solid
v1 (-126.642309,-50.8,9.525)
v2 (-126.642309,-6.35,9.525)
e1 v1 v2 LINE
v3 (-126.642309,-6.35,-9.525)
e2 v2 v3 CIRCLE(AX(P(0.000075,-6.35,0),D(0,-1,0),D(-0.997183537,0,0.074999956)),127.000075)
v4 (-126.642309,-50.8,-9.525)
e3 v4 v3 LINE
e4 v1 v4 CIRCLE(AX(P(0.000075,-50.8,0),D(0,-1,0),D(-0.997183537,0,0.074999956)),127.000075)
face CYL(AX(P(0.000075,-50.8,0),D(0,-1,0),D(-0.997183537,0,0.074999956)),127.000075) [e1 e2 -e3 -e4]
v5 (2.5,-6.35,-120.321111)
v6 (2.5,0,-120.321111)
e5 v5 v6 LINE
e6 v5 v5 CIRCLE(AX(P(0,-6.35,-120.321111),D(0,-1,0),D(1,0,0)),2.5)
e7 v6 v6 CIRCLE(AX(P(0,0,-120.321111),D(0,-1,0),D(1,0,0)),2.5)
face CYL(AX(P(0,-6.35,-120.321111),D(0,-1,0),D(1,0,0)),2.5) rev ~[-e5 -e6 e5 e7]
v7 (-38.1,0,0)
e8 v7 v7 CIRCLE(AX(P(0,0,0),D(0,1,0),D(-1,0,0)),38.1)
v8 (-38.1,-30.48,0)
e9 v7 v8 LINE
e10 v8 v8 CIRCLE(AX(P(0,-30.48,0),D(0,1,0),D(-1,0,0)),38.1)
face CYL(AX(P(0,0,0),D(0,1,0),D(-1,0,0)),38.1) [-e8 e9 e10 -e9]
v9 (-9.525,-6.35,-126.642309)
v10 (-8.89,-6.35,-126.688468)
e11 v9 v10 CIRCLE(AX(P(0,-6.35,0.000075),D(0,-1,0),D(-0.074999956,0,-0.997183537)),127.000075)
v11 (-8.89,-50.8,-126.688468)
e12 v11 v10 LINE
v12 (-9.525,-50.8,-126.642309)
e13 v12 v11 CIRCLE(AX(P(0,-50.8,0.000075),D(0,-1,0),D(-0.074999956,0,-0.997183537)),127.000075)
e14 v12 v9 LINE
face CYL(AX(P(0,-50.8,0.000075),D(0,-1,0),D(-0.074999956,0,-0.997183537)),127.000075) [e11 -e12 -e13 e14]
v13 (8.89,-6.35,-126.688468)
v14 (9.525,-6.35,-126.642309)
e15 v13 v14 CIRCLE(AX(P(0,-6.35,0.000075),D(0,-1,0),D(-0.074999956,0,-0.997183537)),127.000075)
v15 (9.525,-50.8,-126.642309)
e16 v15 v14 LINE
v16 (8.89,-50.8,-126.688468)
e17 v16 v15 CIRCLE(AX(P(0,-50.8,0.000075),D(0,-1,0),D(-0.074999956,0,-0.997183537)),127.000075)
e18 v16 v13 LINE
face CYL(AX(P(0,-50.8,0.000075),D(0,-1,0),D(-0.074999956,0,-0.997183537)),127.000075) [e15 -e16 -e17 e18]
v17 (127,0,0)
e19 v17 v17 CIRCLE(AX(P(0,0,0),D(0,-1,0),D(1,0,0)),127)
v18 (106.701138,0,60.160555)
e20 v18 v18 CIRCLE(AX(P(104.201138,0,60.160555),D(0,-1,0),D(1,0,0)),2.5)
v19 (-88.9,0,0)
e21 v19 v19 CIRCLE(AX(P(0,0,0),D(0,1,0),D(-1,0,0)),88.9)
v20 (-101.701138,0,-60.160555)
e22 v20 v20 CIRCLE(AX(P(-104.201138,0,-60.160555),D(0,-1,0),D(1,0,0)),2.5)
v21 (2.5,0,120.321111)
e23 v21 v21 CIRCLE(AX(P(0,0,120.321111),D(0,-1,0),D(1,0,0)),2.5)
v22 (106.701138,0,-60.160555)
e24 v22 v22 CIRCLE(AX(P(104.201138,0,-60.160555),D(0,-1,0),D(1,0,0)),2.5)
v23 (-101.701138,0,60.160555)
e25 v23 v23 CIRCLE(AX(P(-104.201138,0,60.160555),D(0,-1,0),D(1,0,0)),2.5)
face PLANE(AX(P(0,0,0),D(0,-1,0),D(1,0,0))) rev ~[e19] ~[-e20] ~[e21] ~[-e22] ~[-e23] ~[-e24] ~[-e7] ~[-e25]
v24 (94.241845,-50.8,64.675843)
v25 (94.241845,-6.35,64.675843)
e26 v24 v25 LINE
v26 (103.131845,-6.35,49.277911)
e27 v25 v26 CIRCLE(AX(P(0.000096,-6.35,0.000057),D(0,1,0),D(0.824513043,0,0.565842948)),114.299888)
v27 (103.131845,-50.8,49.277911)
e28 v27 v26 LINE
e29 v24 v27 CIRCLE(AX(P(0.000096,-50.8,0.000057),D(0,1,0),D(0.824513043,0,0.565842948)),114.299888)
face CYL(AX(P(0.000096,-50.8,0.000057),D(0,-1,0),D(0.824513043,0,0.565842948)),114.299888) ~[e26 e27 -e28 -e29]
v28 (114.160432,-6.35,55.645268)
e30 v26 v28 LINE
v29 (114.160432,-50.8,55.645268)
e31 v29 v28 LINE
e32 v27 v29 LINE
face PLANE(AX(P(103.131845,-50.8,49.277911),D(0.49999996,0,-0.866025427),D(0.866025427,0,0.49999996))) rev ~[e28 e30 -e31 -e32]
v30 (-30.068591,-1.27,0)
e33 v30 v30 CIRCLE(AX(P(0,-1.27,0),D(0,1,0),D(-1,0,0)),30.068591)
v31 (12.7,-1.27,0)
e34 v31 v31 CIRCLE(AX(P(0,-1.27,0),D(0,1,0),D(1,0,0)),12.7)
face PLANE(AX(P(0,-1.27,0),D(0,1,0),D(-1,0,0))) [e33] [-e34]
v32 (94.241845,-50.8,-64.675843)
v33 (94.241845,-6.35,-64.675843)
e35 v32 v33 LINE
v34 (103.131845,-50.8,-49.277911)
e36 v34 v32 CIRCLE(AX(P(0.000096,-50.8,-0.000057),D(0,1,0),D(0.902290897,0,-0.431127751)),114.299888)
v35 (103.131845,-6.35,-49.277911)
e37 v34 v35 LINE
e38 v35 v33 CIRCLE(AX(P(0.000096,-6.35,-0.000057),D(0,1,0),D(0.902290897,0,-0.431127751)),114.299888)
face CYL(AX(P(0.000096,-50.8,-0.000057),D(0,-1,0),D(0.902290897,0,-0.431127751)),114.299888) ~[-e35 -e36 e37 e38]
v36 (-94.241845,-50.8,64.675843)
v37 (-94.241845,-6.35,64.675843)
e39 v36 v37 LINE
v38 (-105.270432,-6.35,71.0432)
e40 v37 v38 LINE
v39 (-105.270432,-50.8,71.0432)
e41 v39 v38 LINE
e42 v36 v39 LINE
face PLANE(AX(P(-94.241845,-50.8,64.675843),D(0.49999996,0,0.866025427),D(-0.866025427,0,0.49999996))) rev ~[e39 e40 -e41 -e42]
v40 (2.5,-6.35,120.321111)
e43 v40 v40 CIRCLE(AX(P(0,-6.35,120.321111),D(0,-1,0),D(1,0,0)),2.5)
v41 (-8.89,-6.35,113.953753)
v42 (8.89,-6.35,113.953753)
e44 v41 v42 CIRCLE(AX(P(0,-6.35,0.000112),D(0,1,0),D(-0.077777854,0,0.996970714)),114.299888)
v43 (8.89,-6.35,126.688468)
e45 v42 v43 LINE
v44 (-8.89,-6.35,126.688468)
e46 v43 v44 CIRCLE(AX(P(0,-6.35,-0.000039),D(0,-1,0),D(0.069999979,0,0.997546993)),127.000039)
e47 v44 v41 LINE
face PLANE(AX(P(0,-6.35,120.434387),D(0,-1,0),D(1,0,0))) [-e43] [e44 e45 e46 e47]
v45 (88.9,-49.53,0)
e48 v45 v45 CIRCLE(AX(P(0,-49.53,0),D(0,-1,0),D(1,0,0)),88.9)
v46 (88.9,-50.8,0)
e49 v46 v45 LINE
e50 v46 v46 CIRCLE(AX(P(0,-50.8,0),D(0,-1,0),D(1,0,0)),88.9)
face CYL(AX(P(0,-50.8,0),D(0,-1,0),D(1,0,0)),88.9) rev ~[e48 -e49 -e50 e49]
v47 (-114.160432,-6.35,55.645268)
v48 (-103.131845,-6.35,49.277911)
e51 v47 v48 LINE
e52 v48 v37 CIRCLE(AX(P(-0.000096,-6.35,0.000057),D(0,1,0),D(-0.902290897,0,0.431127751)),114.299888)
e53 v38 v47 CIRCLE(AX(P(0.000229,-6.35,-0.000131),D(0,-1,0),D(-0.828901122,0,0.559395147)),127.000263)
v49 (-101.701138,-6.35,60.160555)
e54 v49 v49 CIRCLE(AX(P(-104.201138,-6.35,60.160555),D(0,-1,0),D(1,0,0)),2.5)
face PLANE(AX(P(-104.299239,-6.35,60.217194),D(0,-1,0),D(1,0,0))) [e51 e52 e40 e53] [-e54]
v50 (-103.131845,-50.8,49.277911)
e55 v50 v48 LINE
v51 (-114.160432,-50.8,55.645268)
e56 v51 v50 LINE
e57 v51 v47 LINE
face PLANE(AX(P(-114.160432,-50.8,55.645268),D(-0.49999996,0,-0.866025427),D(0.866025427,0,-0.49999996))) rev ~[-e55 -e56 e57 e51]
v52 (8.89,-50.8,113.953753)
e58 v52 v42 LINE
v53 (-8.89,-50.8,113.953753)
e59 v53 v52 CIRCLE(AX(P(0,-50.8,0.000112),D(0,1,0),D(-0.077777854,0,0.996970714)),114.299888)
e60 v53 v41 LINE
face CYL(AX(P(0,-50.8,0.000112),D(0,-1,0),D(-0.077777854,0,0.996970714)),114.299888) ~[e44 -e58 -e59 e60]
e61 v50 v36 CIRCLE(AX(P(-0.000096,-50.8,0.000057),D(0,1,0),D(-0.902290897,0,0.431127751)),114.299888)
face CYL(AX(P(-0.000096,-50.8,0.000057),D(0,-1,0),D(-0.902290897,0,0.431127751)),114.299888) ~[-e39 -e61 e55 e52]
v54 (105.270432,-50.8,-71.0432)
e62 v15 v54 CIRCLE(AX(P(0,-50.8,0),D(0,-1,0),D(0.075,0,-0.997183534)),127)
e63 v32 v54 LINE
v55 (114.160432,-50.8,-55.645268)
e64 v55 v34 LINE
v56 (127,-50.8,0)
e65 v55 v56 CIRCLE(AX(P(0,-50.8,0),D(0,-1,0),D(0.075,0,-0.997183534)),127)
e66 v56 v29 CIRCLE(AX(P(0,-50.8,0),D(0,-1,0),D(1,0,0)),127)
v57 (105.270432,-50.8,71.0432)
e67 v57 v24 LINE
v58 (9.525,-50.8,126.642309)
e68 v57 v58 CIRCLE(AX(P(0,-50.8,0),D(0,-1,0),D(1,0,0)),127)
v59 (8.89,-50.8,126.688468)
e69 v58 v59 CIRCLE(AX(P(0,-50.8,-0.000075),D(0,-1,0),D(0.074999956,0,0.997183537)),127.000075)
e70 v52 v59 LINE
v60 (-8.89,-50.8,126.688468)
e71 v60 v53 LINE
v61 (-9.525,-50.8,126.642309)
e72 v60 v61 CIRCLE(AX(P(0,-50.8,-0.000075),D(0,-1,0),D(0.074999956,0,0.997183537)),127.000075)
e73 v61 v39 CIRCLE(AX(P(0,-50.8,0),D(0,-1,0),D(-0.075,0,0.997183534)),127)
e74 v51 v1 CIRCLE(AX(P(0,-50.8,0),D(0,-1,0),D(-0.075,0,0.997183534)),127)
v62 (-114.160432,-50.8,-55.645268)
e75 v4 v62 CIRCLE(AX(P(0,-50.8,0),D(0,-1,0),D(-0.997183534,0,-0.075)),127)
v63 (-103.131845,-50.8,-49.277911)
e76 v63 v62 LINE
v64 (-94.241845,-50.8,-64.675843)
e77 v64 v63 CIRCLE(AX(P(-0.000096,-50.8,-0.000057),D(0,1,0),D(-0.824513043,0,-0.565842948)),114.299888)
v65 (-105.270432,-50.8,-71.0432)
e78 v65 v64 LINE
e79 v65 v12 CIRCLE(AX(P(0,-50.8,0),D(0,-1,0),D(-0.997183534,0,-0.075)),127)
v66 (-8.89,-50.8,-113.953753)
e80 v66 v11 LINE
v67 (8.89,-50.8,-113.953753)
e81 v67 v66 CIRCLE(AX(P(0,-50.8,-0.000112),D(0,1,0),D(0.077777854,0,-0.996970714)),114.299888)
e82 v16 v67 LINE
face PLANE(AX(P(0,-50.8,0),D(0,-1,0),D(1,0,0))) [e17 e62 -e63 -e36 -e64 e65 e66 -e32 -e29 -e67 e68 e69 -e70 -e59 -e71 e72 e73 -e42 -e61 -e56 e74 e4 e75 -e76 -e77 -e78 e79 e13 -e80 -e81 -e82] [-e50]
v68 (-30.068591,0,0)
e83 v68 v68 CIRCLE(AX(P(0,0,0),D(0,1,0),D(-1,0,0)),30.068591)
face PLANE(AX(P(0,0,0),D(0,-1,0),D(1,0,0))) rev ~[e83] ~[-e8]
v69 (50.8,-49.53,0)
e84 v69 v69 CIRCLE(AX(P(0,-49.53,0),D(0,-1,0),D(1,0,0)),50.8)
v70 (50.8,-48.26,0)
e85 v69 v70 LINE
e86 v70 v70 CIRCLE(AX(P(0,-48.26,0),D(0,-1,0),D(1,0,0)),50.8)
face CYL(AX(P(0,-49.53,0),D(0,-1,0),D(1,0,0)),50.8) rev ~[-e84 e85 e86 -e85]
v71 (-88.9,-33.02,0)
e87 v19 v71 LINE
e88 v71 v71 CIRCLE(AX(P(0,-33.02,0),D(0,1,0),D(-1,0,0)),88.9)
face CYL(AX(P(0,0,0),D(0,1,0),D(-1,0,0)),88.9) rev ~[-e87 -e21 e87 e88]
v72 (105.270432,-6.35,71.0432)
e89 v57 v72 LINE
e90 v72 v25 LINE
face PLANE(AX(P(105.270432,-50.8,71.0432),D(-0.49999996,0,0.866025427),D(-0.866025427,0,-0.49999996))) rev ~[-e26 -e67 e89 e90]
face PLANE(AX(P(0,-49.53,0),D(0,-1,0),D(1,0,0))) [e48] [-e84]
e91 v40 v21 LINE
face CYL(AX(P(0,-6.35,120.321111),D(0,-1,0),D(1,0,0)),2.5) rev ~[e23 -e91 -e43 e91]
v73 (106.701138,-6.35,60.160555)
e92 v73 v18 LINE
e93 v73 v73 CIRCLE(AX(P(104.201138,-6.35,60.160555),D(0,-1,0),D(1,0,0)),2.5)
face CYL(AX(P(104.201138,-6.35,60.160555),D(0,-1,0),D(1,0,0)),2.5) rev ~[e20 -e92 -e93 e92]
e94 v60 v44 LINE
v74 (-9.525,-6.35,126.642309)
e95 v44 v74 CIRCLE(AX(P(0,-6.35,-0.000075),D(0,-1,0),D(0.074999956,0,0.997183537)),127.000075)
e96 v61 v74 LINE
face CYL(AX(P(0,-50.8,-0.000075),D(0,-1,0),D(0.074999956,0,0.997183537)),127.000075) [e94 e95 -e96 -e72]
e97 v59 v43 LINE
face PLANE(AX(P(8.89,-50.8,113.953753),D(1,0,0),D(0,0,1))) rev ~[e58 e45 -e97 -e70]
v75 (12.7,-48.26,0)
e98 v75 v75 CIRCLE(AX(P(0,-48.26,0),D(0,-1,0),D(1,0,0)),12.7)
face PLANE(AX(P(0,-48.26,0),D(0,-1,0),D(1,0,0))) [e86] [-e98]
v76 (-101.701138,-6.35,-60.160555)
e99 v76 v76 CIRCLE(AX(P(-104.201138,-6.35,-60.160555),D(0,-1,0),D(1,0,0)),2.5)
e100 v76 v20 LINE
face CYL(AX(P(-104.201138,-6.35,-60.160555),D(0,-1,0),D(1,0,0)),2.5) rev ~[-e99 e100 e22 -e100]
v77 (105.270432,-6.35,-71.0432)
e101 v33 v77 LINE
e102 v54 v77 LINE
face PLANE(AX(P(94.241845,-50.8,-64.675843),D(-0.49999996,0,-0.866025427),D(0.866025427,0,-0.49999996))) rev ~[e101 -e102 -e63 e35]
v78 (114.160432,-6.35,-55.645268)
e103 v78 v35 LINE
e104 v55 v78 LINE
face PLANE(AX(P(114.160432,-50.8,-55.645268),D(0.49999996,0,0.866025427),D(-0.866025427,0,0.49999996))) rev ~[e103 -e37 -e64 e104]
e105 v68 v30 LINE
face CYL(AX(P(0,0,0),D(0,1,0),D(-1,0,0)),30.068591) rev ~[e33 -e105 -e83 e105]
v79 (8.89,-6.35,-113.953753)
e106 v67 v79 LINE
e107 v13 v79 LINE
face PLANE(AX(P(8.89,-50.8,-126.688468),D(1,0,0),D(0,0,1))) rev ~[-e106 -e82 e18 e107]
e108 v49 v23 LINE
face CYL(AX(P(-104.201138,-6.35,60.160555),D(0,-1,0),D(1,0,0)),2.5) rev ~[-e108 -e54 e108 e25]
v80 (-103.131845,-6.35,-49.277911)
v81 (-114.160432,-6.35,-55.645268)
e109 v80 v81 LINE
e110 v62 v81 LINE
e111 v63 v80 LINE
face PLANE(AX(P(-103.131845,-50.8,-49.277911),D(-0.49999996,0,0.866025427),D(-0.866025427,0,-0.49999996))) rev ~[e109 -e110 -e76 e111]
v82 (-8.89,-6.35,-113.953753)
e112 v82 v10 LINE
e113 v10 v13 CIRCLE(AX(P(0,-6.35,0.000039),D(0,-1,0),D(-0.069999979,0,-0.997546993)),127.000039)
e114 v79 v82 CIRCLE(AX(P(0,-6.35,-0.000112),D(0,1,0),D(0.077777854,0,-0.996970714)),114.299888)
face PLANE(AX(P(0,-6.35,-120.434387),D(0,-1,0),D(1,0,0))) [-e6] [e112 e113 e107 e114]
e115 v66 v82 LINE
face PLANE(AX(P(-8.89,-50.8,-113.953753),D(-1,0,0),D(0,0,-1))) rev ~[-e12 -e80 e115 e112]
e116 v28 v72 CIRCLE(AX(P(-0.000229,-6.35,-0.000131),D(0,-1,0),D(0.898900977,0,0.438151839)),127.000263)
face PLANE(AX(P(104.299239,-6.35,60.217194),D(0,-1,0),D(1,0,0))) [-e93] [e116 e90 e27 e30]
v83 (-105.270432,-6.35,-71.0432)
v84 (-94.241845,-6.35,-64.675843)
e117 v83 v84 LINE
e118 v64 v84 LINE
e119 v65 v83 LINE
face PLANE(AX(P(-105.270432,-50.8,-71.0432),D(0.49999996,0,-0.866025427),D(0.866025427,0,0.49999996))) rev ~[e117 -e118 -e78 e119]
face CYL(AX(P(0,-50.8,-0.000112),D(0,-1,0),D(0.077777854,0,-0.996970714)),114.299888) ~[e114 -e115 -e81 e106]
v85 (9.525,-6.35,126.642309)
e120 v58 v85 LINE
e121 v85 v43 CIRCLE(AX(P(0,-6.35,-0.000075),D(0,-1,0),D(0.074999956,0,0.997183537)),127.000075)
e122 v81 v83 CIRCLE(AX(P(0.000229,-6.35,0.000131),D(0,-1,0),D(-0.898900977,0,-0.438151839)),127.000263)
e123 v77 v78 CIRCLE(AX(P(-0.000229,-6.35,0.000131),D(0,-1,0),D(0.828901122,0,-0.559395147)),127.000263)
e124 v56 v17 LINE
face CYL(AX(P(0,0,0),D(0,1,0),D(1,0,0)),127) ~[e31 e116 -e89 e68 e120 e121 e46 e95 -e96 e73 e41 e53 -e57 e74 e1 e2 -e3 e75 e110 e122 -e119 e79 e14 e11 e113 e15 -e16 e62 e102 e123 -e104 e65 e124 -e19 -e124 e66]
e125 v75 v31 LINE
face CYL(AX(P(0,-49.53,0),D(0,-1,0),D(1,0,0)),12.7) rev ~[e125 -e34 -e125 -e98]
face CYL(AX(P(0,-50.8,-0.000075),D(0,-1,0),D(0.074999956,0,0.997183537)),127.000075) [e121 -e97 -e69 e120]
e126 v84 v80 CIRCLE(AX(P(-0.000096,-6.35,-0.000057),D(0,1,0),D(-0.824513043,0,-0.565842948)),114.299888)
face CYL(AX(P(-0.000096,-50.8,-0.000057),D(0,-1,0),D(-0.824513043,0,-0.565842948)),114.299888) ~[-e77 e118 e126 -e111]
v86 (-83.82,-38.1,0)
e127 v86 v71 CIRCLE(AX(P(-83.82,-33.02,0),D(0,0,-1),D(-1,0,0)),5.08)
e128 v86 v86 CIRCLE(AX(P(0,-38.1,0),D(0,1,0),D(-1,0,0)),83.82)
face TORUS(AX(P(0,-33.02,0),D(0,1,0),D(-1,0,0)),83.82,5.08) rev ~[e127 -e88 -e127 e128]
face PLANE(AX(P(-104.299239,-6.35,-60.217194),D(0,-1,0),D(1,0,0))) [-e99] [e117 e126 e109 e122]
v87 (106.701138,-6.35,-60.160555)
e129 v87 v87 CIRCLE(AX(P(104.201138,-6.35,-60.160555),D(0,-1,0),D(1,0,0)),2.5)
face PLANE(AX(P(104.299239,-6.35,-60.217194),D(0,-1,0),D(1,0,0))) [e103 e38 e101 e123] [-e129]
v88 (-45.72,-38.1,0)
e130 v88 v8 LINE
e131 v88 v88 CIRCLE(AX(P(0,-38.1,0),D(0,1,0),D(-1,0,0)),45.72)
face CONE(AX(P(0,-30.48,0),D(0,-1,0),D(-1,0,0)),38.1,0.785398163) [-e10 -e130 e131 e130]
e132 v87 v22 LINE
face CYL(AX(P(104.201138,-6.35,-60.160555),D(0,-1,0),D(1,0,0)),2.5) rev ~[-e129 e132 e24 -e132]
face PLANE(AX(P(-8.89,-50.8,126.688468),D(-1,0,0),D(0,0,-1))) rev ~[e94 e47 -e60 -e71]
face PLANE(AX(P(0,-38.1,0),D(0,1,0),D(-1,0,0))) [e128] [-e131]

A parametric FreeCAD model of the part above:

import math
import FreeCAD as App
import Part
import Sketcher

V = App.Vector
Q = App.Units.Quantity


def edges_at(feature, points):
    """Names of the edges that pass closest to the given points."""
    edges = feature.Shape.Edges
    near = lambda p: min(range(len(edges)), key=lambda i: edges[i].distToShape(Part.Vertex(*p))[0])
    return sorted({f"Edge{near(p) + 1}" for p in points})

doc = App.newDocument("Part")
body = doc.addObject("PartDesign::Body", "Body")

sketch1 = body.newObject("Sketcher::SketchObject", "Sketch")
sketch1.AttachmentSupport = (doc.getObject("XZ_Plane"), [""])
sketch1.MapMode = "FlatFace"
sketch1.addGeometry(Part.Circle(V(0, 0, 0), V(0, 0, 1), 127), False)
sketch1.addConstraint([
    Sketcher.Constraint("Coincident", 0, 3, -1, 1),
    Sketcher.Constraint("Diameter", 0, Q("10 in")),
])
pad1 = body.newObject("PartDesign::Pad", "Pad")
pad1.Profile = sketch1
pad1.Length = Q("2 in")

sketch2 = body.newObject("Sketcher::SketchObject", "Sketch001")
sketch2.AttachmentSupport = (doc.getObject("XZ_Plane"), [""])
sketch2.MapMode = "FlatFace"
sketch2.AttachmentOffset = App.Placement(V(0, 0, 2 * 25.4), App.Rotation())
sketch2.addGeometry(Part.Circle(V(0, 0, 0), V(0, 0, 1), 89), False)
sketch2.addConstraint([
    Sketcher.Constraint("Coincident", 0, 3, -1, 1),
    Sketcher.Constraint("Diameter", 0, Q("7 in")),
])
pocket1 = body.newObject("PartDesign::Pocket", "Pocket")
pocket1.Profile = sketch2
pocket1.Length = Q("0.05 in")

sketch3 = body.newObject("Sketcher::SketchObject", "Sketch002")
sketch3.AttachmentSupport = (doc.getObject("XZ_Plane"), [""])
sketch3.MapMode = "FlatFace"
sketch3.AttachmentOffset = App.Placement(V(0, 0, 1.95 * 25.4), App.Rotation())
sketch3.addGeometry(Part.Circle(V(0, 0, 0), V(0, 0, 1), 13), False)
sketch3.addConstraint([
    Sketcher.Constraint("Coincident", 0, 3, -1, 1),
    Sketcher.Constraint("Diameter", 0, Q("1 in")),
])
pocket2 = body.newObject("PartDesign::Pocket", "Pocket001")
pocket2.Profile = sketch3
pocket2.Length = Q("2 in")

sketch4 = body.newObject("Sketcher::SketchObject", "Sketch003")
sketch4.AttachmentSupport = (doc.getObject("XZ_Plane"), [""])
sketch4.MapMode = "FlatFace"
sketch4.AttachmentOffset = App.Placement(V(0, 0, 1.95 * 25.4), App.Rotation())
sketch4.addGeometry(Part.Circle(V(0, 0, 0), V(0, 0, 1), 51), False)
sketch4.addConstraint([
    Sketcher.Constraint("Coincident", 0, 3, -1, 1),
    Sketcher.Constraint("Diameter", 0, Q("4 in")),
])
pocket3 = body.newObject("PartDesign::Pocket", "Pocket002")
pocket3.Profile = sketch4
pocket3.Length = Q("0.05 in")

sketch5 = body.newObject("Sketcher::SketchObject", "Sketch004")
sketch5.AttachmentSupport = (doc.getObject("XZ_Plane"), [""])
sketch5.MapMode = "FlatFace"
sketch5.addGeometry([
    Part.Circle(V(0, 0, 0), V(0, 0, 1), 89),
    Part.Circle(V(0, 0, 0), V(0, 0, 1), 38),
], False)
sketch5.addConstraint([
    Sketcher.Constraint("Coincident", 0, 3, -1, 1),
    Sketcher.Constraint("Coincident", 1, 3, -1, 1),
    Sketcher.Constraint("Diameter", 0, Q("7 in")),
    Sketcher.Constraint("Diameter", 1, Q("3 in")),
])
pocket4 = body.newObject("PartDesign::Pocket", "Pocket003")
pocket4.Profile = sketch5
pocket4.Length = Q("1.5 in")
pocket4.Reversed = True
doc.recompute()

chamfer = body.newObject("PartDesign::Chamfer", "Chamfer")
chamfer.Base = (pocket4, edges_at(pocket4, [(38.1, -38.1, 0)]))
chamfer.Size = Q("0.3 in")
doc.recompute()

fillet = body.newObject("PartDesign::Fillet", "Fillet")
fillet.Base = (chamfer, edges_at(chamfer, [(88.9, -38.1, 0)]))
fillet.Radius = Q("0.2 in")

sketch6 = body.newObject("Sketcher::SketchObject", "Sketch005")
sketch6.AttachmentSupport = (doc.getObject("XZ_Plane"), [""])
sketch6.MapMode = "FlatFace"
sketch6.AttachmentOffset = App.Placement(V(0, 0, 2 * 25.4), App.Rotation())
sketch6.addGeometry([
    Part.ArcOfCircle(Part.Circle(V(0, -0.001063, 0), V(0, 0, 1), 107.951063), math.radians(88.408262), math.radians(91.591738)),
    Part.ArcOfCircle(Part.Circle(V(3.175002, 114.255893, 0), V(0, 0, 1), 6.349998), math.radians(-91.591769), math.radians(0.000008)),
    Part.LineSegment(V(9.525, 114.255894, 0), V(9.525, 126.642309, 0)),
    Part.ArcOfCircle(Part.Circle(V(0, -0.000075, 0), V(0, 0, 1), 127.000075), math.radians(85.69878), math.radians(94.30122)),
    Part.LineSegment(V(-9.525, 126.642309, 0), V(-9.525, 114.255894, 0)),
    Part.ArcOfCircle(Part.Circle(V(-3.175002, 114.255893, 0), V(0, 0, 1), 6.349998), math.radians(179.999992), math.radians(271.591769)),
    Part.LineSegment(V(-74.055926, 87.52631, 0), V(-82.814443, 96.284827, 0)),
    Part.ArcOfCircle(Part.Circle(V(-0.000044, 0.000044, 0), V(0, 0, 1), 126.999938), math.radians(130.698776), math.radians(139.301224)),
    Part.LineSegment(V(-96.284827, 82.814443, 0), V(-87.52631, 74.055926, 0)),
    Part.ArcOfCircle(Part.Circle(V(-83.036181, 78.546053, 0), V(0, 0, 1), 6.35), math.radians(-135.000009), math.radians(-43.408242)),
    Part.ArcOfCircle(Part.Circle(V(-0.00047, 0.00047, 0), V(0, 0, 1), 107.949335), math.radians(133.408236), math.radians(136.591764)),
    Part.ArcOfCircle(Part.Circle(V(-78.546053, 83.036181, 0), V(0, 0, 1), 6.35), math.radians(-46.591758), math.radians(45.000009)),
    Part.LineSegment(V(-114.255894, 9.525, 0), V(-126.642309, 9.525, 0)),
    Part.ArcOfCircle(Part.Circle(V(0.000075, 0, 0), V(0, 0, 1), 127.000075), math.radians(175.69878), math.radians(184.30122)),
    Part.LineSegment(V(-126.642309, -9.525, 0), V(-114.255894, -9.525, 0)),
    Part.ArcOfCircle(Part.Circle(V(-114.255893, -3.175002, 0), V(0, 0, 1), 6.349998), math.radians(-90.000008), math.radians(1.591769)),
    Part.ArcOfCircle(Part.Circle(V(0.001063, 0, 0), V(0, 0, 1), 107.951063), math.radians(178.408262), math.radians(181.591738)),
    Part.ArcOfCircle(Part.Circle(V(-114.255893, 3.175002, 0), V(0, 0, 1), 6.349998), math.radians(-1.591769), math.radians(90.000008)),
    Part.LineSegment(V(-87.52631, -74.055926, 0), V(-96.284827, -82.814443, 0)),
    Part.ArcOfCircle(Part.Circle(V(-0.000044, -0.000044, 0), V(0, 0, 1), 126.999938), math.radians(-139.301224), math.radians(-130.698776)),
    Part.LineSegment(V(-82.814443, -96.284827, 0), V(-74.055926, -87.52631, 0)),
    Part.ArcOfCircle(Part.Circle(V(-78.546053, -83.036181, 0), V(0, 0, 1), 6.35), math.radians(-45.000009), math.radians(46.591758)),
    Part.ArcOfCircle(Part.Circle(V(-0.00047, -0.00047, 0), V(0, 0, 1), 107.949335), math.radians(-136.591764), math.radians(-133.408236)),
    Part.ArcOfCircle(Part.Circle(V(-83.036181, -78.546053, 0), V(0, 0, 1), 6.35), math.radians(43.408242), math.radians(135.000009)),
    Part.LineSegment(V(-9.525, -114.255894, 0), V(-9.525, -126.642309, 0)),
    Part.ArcOfCircle(Part.Circle(V(0, 0.000075, 0), V(0, 0, 1), 127.000075), math.radians(-94.30122), math.radians(-85.69878)),
    Part.LineSegment(V(9.525, -126.642309, 0), V(9.525, -114.255894, 0)),
    Part.ArcOfCircle(Part.Circle(V(3.175002, -114.255893, 0), V(0, 0, 1), 6.349998), math.radians(-0.000008), math.radians(91.591769)),
    Part.ArcOfCircle(Part.Circle(V(0, 0.001063, 0), V(0, 0, 1), 107.951063), math.radians(-91.591738), math.radians(-88.408262)),
    Part.ArcOfCircle(Part.Circle(V(-3.175002, -114.255893, 0), V(0, 0, 1), 6.349998), math.radians(88.408231), math.radians(180.000008)),
    Part.LineSegment(V(74.055926, -87.52631, 0), V(82.814443, -96.284827, 0)),
    Part.ArcOfCircle(Part.Circle(V(0.000044, -0.000044, 0), V(0, 0, 1), 126.999938), math.radians(-49.301224), math.radians(-40.698776)),
    Part.LineSegment(V(96.284827, -82.814443, 0), V(87.52631, -74.055926, 0)),
    Part.ArcOfCircle(Part.Circle(V(83.036181, -78.546053, 0), V(0, 0, 1), 6.35), math.radians(44.999991), math.radians(136.591758)),
    Part.ArcOfCircle(Part.Circle(V(0.00047, -0.00047, 0), V(0, 0, 1), 107.949335), math.radians(-46.591764), math.radians(-43.408236)),
    Part.ArcOfCircle(Part.Circle(V(78.546053, -83.036181, 0), V(0, 0, 1), 6.35), math.radians(133.408242), math.radians(225.000009)),
    Part.LineSegment(V(114.255894, -9.525, 0), V(126.642309, -9.525, 0)),
    Part.ArcOfCircle(Part.Circle(V(-0.000075, 0, 0), V(0, 0, 1), 127.000075), math.radians(-4.30122), math.radians(4.30122)),
    Part.LineSegment(V(126.642309, 9.525, 0), V(114.255894, 9.525, 0)),
    Part.ArcOfCircle(Part.Circle(V(114.255893, 3.175002, 0), V(0, 0, 1), 6.349998), math.radians(89.999992), math.radians(181.591769)),
    Part.ArcOfCircle(Part.Circle(V(-0.001063, 0, 0), V(0, 0, 1), 107.951063), math.radians(-1.591738), math.radians(1.591738)),
    Part.ArcOfCircle(Part.Circle(V(114.255893, -3.175002, 0), V(0, 0, 1), 6.349998), math.radians(178.408231), math.radians(270.000008)),
    Part.LineSegment(V(87.52631, 74.055926, 0), V(96.284827, 82.814443, 0)),
    Part.ArcOfCircle(Part.Circle(V(0.000044, 0.000044, 0), V(0, 0, 1), 126.999938), math.radians(40.698776), math.radians(49.301224)),
    Part.LineSegment(V(82.814443, 96.284827, 0), V(74.055926, 87.52631, 0)),
    Part.ArcOfCircle(Part.Circle(V(78.546053, 83.036181, 0), V(0, 0, 1), 6.35), math.radians(134.999991), math.radians(226.591758)),
    Part.ArcOfCircle(Part.Circle(V(0.00047, 0.00047, 0), V(0, 0, 1), 107.949335), math.radians(43.408236), math.radians(46.591764)),
    Part.ArcOfCircle(Part.Circle(V(83.036181, 78.546053, 0), V(0, 0, 1), 6.35), math.radians(-136.591758), math.radians(-44.999991)),
], False)
sketch6.addConstraint([
    Sketcher.Constraint("Tangent", 0, 1, 1, 1),
    Sketcher.Constraint("Tangent", 1, 2, 2, 1),
    Sketcher.Constraint("Coincident", 2, 2, 3, 1),
    Sketcher.Constraint("Coincident", 3, 2, 4, 1),
    Sketcher.Constraint("Tangent", 4, 2, 5, 1),
    Sketcher.Constraint("Tangent", 5, 2, 0, 2),
    Sketcher.Constraint("Coincident", 6, 2, 7, 1),
    Sketcher.Constraint("Coincident", 7, 2, 8, 1),
    Sketcher.Constraint("Tangent", 8, 2, 9, 1),
    Sketcher.Constraint("Tangent", 9, 2, 10, 2),
    Sketcher.Constraint("Tangent", 10, 1, 11, 1),
    Sketcher.Constraint("Tangent", 11, 2, 6, 1),
    Sketcher.Constraint("Coincident", 12, 2, 13, 1),
    Sketcher.Constraint("Coincident", 13, 2, 14, 1),
    Sketcher.Constraint("Tangent", 14, 2, 15, 1),
    Sketcher.Constraint("Tangent", 15, 2, 16, 2),
    Sketcher.Constraint("Tangent", 16, 1, 17, 1),
    Sketcher.Constraint("Tangent", 17, 2, 12, 1),
    Sketcher.Constraint("Coincident", 18, 2, 19, 1),
    Sketcher.Constraint("Coincident", 19, 2, 20, 1),
    Sketcher.Constraint("Tangent", 20, 2, 21, 1),
    Sketcher.Constraint("Tangent", 21, 2, 22, 2),
    Sketcher.Constraint("Tangent", 22, 1, 23, 1),
    Sketcher.Constraint("Tangent", 23, 2, 18, 1),
    Sketcher.Constraint("Coincident", 24, 2, 25, 1),
    Sketcher.Constraint("Coincident", 25, 2, 26, 1),
    Sketcher.Constraint("Tangent", 26, 2, 27, 1),
    Sketcher.Constraint("Tangent", 27, 2, 28, 2),
    Sketcher.Constraint("Tangent", 28, 1, 29, 1),
    Sketcher.Constraint("Tangent", 29, 2, 24, 1),
    Sketcher.Constraint("Coincident", 30, 2, 31, 1),
    Sketcher.Constraint("Coincident", 31, 2, 32, 1),
    Sketcher.Constraint("Tangent", 32, 2, 33, 1),
    Sketcher.Constraint("Tangent", 33, 2, 34, 2),
    Sketcher.Constraint("Tangent", 34, 1, 35, 1),
    Sketcher.Constraint("Tangent", 35, 2, 30, 1),
    Sketcher.Constraint("Coincident", 36, 2, 37, 1),
    Sketcher.Constraint("Coincident", 37, 2, 38, 1),
    Sketcher.Constraint("Tangent", 38, 2, 39, 1),
    Sketcher.Constraint("Tangent", 39, 2, 40, 2),
    Sketcher.Constraint("Tangent", 40, 1, 41, 1),
    Sketcher.Constraint("Tangent", 41, 2, 36, 1),
    Sketcher.Constraint("Coincident", 42, 2, 43, 1),
    Sketcher.Constraint("Coincident", 43, 2, 44, 1),
    Sketcher.Constraint("Tangent", 44, 2, 45, 1),
    Sketcher.Constraint("Tangent", 45, 2, 46, 2),
    Sketcher.Constraint("Tangent", 46, 1, 47, 1),
    Sketcher.Constraint("Tangent", 47, 2, 42, 1),
    Sketcher.Constraint("Vertical", 2),
    Sketcher.Constraint("Vertical", 4),
    Sketcher.Constraint("Horizontal", 12),
    Sketcher.Constraint("Horizontal", 14),
    Sketcher.Constraint("Vertical", 24),
    Sketcher.Constraint("Vertical", 26),
    Sketcher.Constraint("Horizontal", 36),
    Sketcher.Constraint("Horizontal", 38),
    Sketcher.Constraint("Equal", 1, 5),
    Sketcher.Constraint("Equal", 5, 9),
    Sketcher.Constraint("Equal", 9, 11),
    Sketcher.Constraint("Equal", 3, 13),
    Sketcher.Constraint("Equal", 11, 15),
    Sketcher.Constraint("Equal", 0, 16),
    Sketcher.Constraint("Equal", 15, 17),
    Sketcher.Constraint("Equal", 7, 19),
    Sketcher.Constraint("Equal", 17, 21),
    Sketcher.Constraint("Equal", 10, 22),
    Sketcher.Constraint("Equal", 21, 23),
    Sketcher.Constraint("Equal", 13, 25),
    Sketcher.Constraint("Equal", 23, 27),
    Sketcher.Constraint("Equal", 16, 28),
    Sketcher.Constraint("Equal", 27, 29),
    Sketcher.Constraint("Equal", 19, 31),
    Sketcher.Constraint("Equal", 29, 33),
    Sketcher.Constraint("Equal", 22, 34),
    Sketcher.Constraint("Equal", 33, 35),
    Sketcher.Constraint("Equal", 25, 37),
    Sketcher.Constraint("Equal", 35, 39),
    Sketcher.Constraint("Equal", 28, 40),
    Sketcher.Constraint("Equal", 39, 41),
    Sketcher.Constraint("Equal", 31, 43),
    Sketcher.Constraint("Equal", 41, 45),
    Sketcher.Constraint("Equal", 34, 46),
    Sketcher.Constraint("Equal", 45, 47),
    Sketcher.Constraint("Symmetric", 3, 3, 25, 3, -1, 1),
    Sketcher.Constraint("Symmetric", 5, 3, 27, 3, -1, 1),
    Sketcher.Constraint("Symmetric", 1, 3, 29, 3, -1, 1),
    Sketcher.Constraint("Symmetric", 7, 3, 31, 3, -1, 1),
    Sketcher.Constraint("Symmetric", 9, 3, 33, 3, -1, 1),
    Sketcher.Constraint("Symmetric", 11, 3, 35, 3, -1, 1),
    Sketcher.Constraint("Symmetric", 13, 3, 37, 3, -1, 1),
    Sketcher.Constraint("Symmetric", 15, 3, 39, 3, -1, 1),
    Sketcher.Constraint("Symmetric", 17, 3, 41, 3, -1, 1),
    Sketcher.Constraint("Symmetric", 19, 3, 43, 3, -1, 1),
    Sketcher.Constraint("Symmetric", 21, 3, 45, 3, -1, 1),
    Sketcher.Constraint("Symmetric", 23, 3, 47, 3, -1, 1),
    Sketcher.Constraint("Symmetric", 1, 3, 5, 3, -2),
    Sketcher.Constraint("Symmetric", 19, 3, 31, 3, -2),
    Sketcher.Constraint("Symmetric", 23, 3, 33, 3, -2),
    Sketcher.Constraint("Symmetric", 21, 3, 35, 3, -2),
    Sketcher.Constraint("Symmetric", 17, 3, 39, 3, -2),
    Sketcher.Constraint("PointOnObject", 3, 3, -2),
    Sketcher.Constraint("PointOnObject", 13, 3, -1),
    Sketcher.Constraint("Parallel", 6, 8),
    Sketcher.Constraint("Perpendicular", 8, 18),
    Sketcher.Constraint("Parallel", 18, 20),
    Sketcher.Constraint("Perpendicular", 20, 30),
    Sketcher.Constraint("Parallel", 30, 32),
    Sketcher.Constraint("Perpendicular", 32, 42),
    Sketcher.Constraint("Parallel", 42, 44),
    Sketcher.Constraint("Horizontal", 19, 2, 30, 2),
    Sketcher.Constraint("Equal", 38, 2),
    Sketcher.Constraint("Equal", 6, 8),
    Sketcher.Constraint("Radius", 1, Q("0.2499999 in")),
    Sketcher.Constraint("DistanceX", -1, 1, 1, 3, Q("0.1250001 in")),
    Sketcher.Constraint("DistanceY", 15, 3, -1, 1, Q("0.1250001 in")),
    Sketcher.Constraint("Radius", 0, Q("107.951063 mm")),
    Sketcher.Constraint("Radius", 3, Q("127.000075 mm")),
    Sketcher.Constraint("Radius", 7, Q("126.999938 mm")),
    Sketcher.Constraint("Radius", 10, Q("107.949335 mm")),
    Sketcher.Constraint("DistanceX", 12, 2, 12, 1, Q("12.386415 mm")),
    Sketcher.Constraint("DistanceX", 9, 3, -1, 1, Q("83.036181 mm")),
    Sketcher.Constraint("DistanceX", 10, 3, -1, 1, Q("0.00047 mm")),
    Sketcher.Constraint("DistanceY", -1, 1, 10, 3, Q("0.00047 mm")),
    Sketcher.Constraint("DistanceY", -1, 1, 11, 3, Q("83.036181 mm")),
    Sketcher.Constraint("DistanceY", -1, 1, 2, 2, Q("126.642309 mm")),
    Sketcher.Constraint("DistanceX", 12, 2, -1, 1, Q("126.642309 mm")),
    Sketcher.Constraint("Distance", 6, Q("12.386414 mm")),
])
pad2 = body.newObject("PartDesign::Pad", "Pad001")
pad2.Profile = sketch6
pad2.Length = Q("1.75 in")
pad2.Reversed = True

sketch7 = body.newObject("Sketcher::SketchObject", "Sketch006")
sketch7.AttachmentSupport = (doc.getObject("XZ_Plane"), [""])
sketch7.MapMode = "FlatFace"
sketch7.addGeometry([
    Part.Circle(V(0, 0, 0), V(0, 0, 1), 30),
    Part.Circle(V(0, 0, 0), V(0, 0, 1), 13),
], False)
sketch7.addConstraint([
    Sketcher.Constraint("Coincident", 0, 3, -1, 1),
    Sketcher.Constraint("Coincident", 1, 3, -1, 1),
    Sketcher.Constraint("Diameter", 1, Q("1 in")),
    Sketcher.Constraint("Diameter", 0, Q("60.137182 mm")),
])
pocket5 = body.newObject("PartDesign::Pocket", "Pocket004")
pocket5.Profile = sketch7
pocket5.Length = Q("0.05 in")
pocket5.Reversed = True

sketch8 = body.newObject("Sketcher::SketchObject", "Sketch007")
sketch8.AttachmentSupport = (doc.getObject("XZ_Plane"), [""])
sketch8.MapMode = "FlatFace"
sketch8.AttachmentOffset = App.Placement(V(0, 0, 2 * 25.4), App.Rotation())
sketch8.addGeometry([
    Part.ArcOfCircle(Part.Circle(V(-0.000096, 0.000057, 0), V(0, 0, 1), 114.299888), math.radians(145.539152), math.radians(154.460849)),
    Part.LineSegment(V(-94.241845, 64.675843, 0), V(-105.270432, 71.0432, 0)),
    Part.ArcOfCircle(Part.Circle(V(0.000229, -0.000131, 0), V(0, 0, 1), 127.000263), math.radians(145.986022), math.radians(154.013979)),
    Part.LineSegment(V(-114.160432, 55.645268, 0), V(-103.131845, 49.277911, 0)),
    Part.ArcOfCircle(Part.Circle(V(-0.000096, -0.000057, 0), V(0, 0, 1), 114.299888), math.radians(-154.460849), math.radians(-145.539152)),
    Part.LineSegment(V(-103.131845, -49.277911, 0), V(-114.160432, -55.645268, 0)),
    Part.ArcOfCircle(Part.Circle(V(0.000229, 0.000131, 0), V(0, 0, 1), 127.000263), math.radians(-154.013979), math.radians(-145.986022)),
    Part.LineSegment(V(-105.270432, -71.0432, 0), V(-94.241845, -64.675843, 0)),
    Part.ArcOfCircle(Part.Circle(V(0, -0.000112, 0), V(0, 0, 1), 114.299888), math.radians(-94.460848), math.radians(-85.539152)),
    Part.LineSegment(V(-8.89, -113.953753, 0), V(-8.89, -126.688468, 0)),
    Part.ArcOfCircle(Part.Circle(V(0, 0.000039, 0), V(0, 0, 1), 127.000039), math.radians(-94.013986), math.radians(-85.986014)),
    Part.LineSegment(V(8.89, -126.688468, 0), V(8.89, -113.953753, 0)),
    Part.ArcOfCircle(Part.Circle(V(0.000096, -0.000057, 0), V(0, 0, 1), 114.299888), math.radians(-34.460848), math.radians(-25.539151)),
    Part.LineSegment(V(94.241845, -64.675843, 0), V(105.270432, -71.0432, 0)),
    Part.ArcOfCircle(Part.Circle(V(-0.000229, 0.000131, 0), V(0, 0, 1), 127.000263), math.radians(-34.013978), math.radians(-25.986021)),
    Part.LineSegment(V(114.160432, -55.645268, 0), V(103.131845, -49.277911, 0)),
    Part.ArcOfCircle(Part.Circle(V(0.000096, 0.000057, 0), V(0, 0, 1), 114.299888), math.radians(25.539151), math.radians(34.460848)),
    Part.LineSegment(V(103.131845, 49.277911, 0), V(114.160432, 55.645268, 0)),
    Part.ArcOfCircle(Part.Circle(V(-0.000229, -0.000131, 0), V(0, 0, 1), 127.000263), math.radians(25.986021), math.radians(34.013978)),
    Part.LineSegment(V(105.270432, 71.0432, 0), V(94.241845, 64.675843, 0)),
    Part.LineSegment(V(8.89, 113.953753, 0), V(8.89, 126.688468, 0)),
    Part.ArcOfCircle(Part.Circle(V(0, -0.000039, 0), V(0, 0, 1), 127.000039), math.radians(85.986014), math.radians(94.013986)),
    Part.LineSegment(V(-8.89, 126.688468, 0), V(-8.89, 113.953753, 0)),
    Part.ArcOfCircle(Part.Circle(V(0, 0.000112, 0), V(0, 0, 1), 114.299888), math.radians(85.539152), math.radians(94.460848)),
], False)
sketch8.addConstraint([
    Sketcher.Constraint("Coincident", 0, 1, 1, 1),
    Sketcher.Constraint("Coincident", 1, 2, 2, 1),
    Sketcher.Constraint("Coincident", 2, 2, 3, 1),
    Sketcher.Constraint("Coincident", 3, 2, 0, 2),
    Sketcher.Constraint("Coincident", 4, 1, 5, 1),
    Sketcher.Constraint("Coincident", 5, 2, 6, 1),
    Sketcher.Constraint("Coincident", 6, 2, 7, 1),
    Sketcher.Constraint("Coincident", 7, 2, 4, 2),
    Sketcher.Constraint("Coincident", 8, 1, 9, 1),
    Sketcher.Constraint("Coincident", 9, 2, 10, 1),
    Sketcher.Constraint("Coincident", 10, 2, 11, 1),
    Sketcher.Constraint("Coincident", 11, 2, 8, 2),
    Sketcher.Constraint("Coincident", 12, 1, 13, 1),
    Sketcher.Constraint("Coincident", 13, 2, 14, 1),
    Sketcher.Constraint("Coincident", 14, 2, 15, 1),
    Sketcher.Constraint("Coincident", 15, 2, 12, 2),
    Sketcher.Constraint("Coincident", 16, 1, 17, 1),
    Sketcher.Constraint("Coincident", 17, 2, 18, 1),
    Sketcher.Constraint("Coincident", 18, 2, 19, 1),
    Sketcher.Constraint("Coincident", 19, 2, 16, 2),
    Sketcher.Constraint("Coincident", 20, 2, 21, 1),
    Sketcher.Constraint("Coincident", 21, 2, 22, 1),
    Sketcher.Constraint("Coincident", 22, 2, 23, 2),
    Sketcher.Constraint("Coincident", 23, 1, 20, 1),
    Sketcher.Constraint("Vertical", 9),
    Sketcher.Constraint("Vertical", 11),
    Sketcher.Constraint("Vertical", 20),
    Sketcher.Constraint("Vertical", 22),
    Sketcher.Constraint("Equal", 0, 4),
    Sketcher.Constraint("Equal", 2, 6),
    Sketcher.Constraint("Equal", 4, 8),
    Sketcher.Constraint("Equal", 8, 12),
    Sketcher.Constraint("Equal", 6, 14),
    Sketcher.Constraint("Equal", 12, 16),
    Sketcher.Constraint("Equal", 14, 18),
    Sketcher.Constraint("Equal", 10, 21),
    Sketcher.Constraint("Equal", 16, 23),
    Sketcher.Constraint("Symmetric", 0, 3, 12, 3, -1, 1),
    Sketcher.Constraint("Symmetric", 2, 3, 14, 3, -1, 1),
    Sketcher.Constraint("Symmetric", 4, 3, 16, 3, -1, 1),
    Sketcher.Constraint("Symmetric", 6, 3, 18, 3, -1, 1),
    Sketcher.Constraint("Symmetric", 10, 3, 21, 3, -1, 1),
    Sketcher.Constraint("Symmetric", 8, 3, 23, 3, -1, 1),
    Sketcher.Constraint("Symmetric", 4, 3, 12, 3, -2),
    Sketcher.Constraint("Symmetric", 6, 3, 14, 3, -2),
    Sketcher.Constraint("Symmetric", 9, 2, 10, 2, -2),
    Sketcher.Constraint("Symmetric", 22, 2, 23, 1, -2),
    Sketcher.Constraint("Parallel", 1, 3),
    Sketcher.Constraint("Parallel", 5, 7),
    Sketcher.Constraint("Parallel", 3, 13),
    Sketcher.Constraint("Parallel", 13, 15),
    Sketcher.Constraint("Parallel", 7, 17),
    Sketcher.Constraint("Parallel", 17, 19),
    Sketcher.Constraint("Horizontal", 7, 2, 12, 1),
    Sketcher.Constraint("Horizontal", 6, 2, 13, 2),
    Sketcher.Constraint("Horizontal", 5, 2, 14, 2),
    Sketcher.Constraint("Horizontal", 3, 2, 16, 1),
    Sketcher.Constraint("Horizontal", 1, 2, 18, 2),
    Sketcher.Constraint("Vertical", 3, 2, 4, 1),
    Sketcher.Constraint("Vertical", 1, 2, 6, 2),
    Sketcher.Constraint("Vertical", 11, 2, 20, 2),
    Sketcher.Constraint("Equal", 1, 3),
    Sketcher.Constraint("Angle", 1, Q("150.000003 deg")),
    Sketcher.Constraint("DistanceX", 9, 2, 10, 2, Q("0.7 in")),
    Sketcher.Constraint("DistanceX", 2, 2, 1, 2, Q("0.35 in")),
    Sketcher.Constraint("Radius", 0, Q("114.299888 mm")),
    Sketcher.Constraint("Radius", 10, Q("127.000039 mm")),
    Sketcher.Constraint("Radius", 2, Q("127.000263 mm")),
    Sketcher.Constraint("DistanceX", 0, 1, 14, 3, Q("3.7102999 in")),
    Sketcher.Constraint("DistanceY", -1, 1, 1, 2, Q("71.0432 mm")),
    Sketcher.Constraint("DistanceY", 4, 3, 0, 1, Q("64.6759 mm")),
    Sketcher.Constraint("DistanceY", 18, 3, 2, 2, Q("55.645399 mm")),
    Sketcher.Constraint("DistanceY", 9, 2, 9, 1, Q("12.734715 mm")),
    Sketcher.Constraint("DistanceY", 8, 3, -1, 1, Q("0.000112 mm")),
])
pocket6 = body.newObject("PartDesign::Pocket", "Pocket005")
pocket6.Profile = sketch8
pocket6.Length = Q("1.75 in")

sketch9 = body.newObject("Sketcher::SketchObject", "Sketch008")
sketch9.AttachmentSupport = (doc.getObject("XZ_Plane"), [""])
sketch9.MapMode = "FlatFace"
sketch9.AttachmentOffset = App.Placement(V(0, 0, 0.25 * 25.4), App.Rotation())
sketch9.addGeometry([
    Part.Circle(V(0, 120.3, 0), V(0, 0, 1), 2.5),
    Part.Circle(V(-104.2, 60.2, 0), V(0, 0, 1), 2.5),
    Part.Circle(V(-104.2, -60.2, 0), V(0, 0, 1), 2.5),
    Part.Circle(V(0, -120.3, 0), V(0, 0, 1), 2.5),
    Part.Circle(V(104.2, -60.2, 0), V(0, 0, 1), 2.5),
    Part.Circle(V(104.2, 60.2, 0), V(0, 0, 1), 2.5),
], False)
sketch9.addConstraint([
    Sketcher.Constraint("Equal", 0, 1),
    Sketcher.Constraint("Equal", 1, 2),
    Sketcher.Constraint("Equal", 2, 3),
    Sketcher.Constraint("Equal", 3, 4),
    Sketcher.Constraint("Equal", 4, 5),
    Sketcher.Constraint("Symmetric", 0, 3, 3, 3, -1, 1),
    Sketcher.Constraint("Symmetric", 1, 3, 4, 3, -1, 1),
    Sketcher.Constraint("Symmetric", 2, 3, 5, 3, -1, 1),
    Sketcher.Constraint("Symmetric", 2, 3, 4, 3, -2),
    Sketcher.Constraint("PointOnObject", 0, 3, -2),
    Sketcher.Constraint("Diameter", 0, Q("5 mm")),
    Sketcher.Constraint("DistanceY", -1, 1, 0, 3, Q("120.321111 mm")),
    Sketcher.Constraint("DistanceX", 1, 3, -1, 1, Q("104.201138 mm")),
    Sketcher.Constraint("DistanceY", 2, 3, 1, 3, Q("120.32111 mm")),
])
pocket7 = body.newObject("PartDesign::Pocket", "Pocket006")
pocket7.Profile = sketch9
pocket7.Length = Q("1 in")

doc.recompute()
